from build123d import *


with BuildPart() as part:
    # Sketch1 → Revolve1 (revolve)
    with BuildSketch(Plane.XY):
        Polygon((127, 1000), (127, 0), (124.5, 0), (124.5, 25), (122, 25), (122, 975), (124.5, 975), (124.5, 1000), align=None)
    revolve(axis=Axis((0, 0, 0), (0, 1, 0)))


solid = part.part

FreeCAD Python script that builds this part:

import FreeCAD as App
import Part
import Sketcher

doc = App.newDocument("Part")
body = doc.addObject("PartDesign::Body", "Body")

sketch1 = doc.addObject("Sketcher::SketchObject", "Sketch")
body.addObject(sketch1)
sketch1.AttachmentSupport = (doc.XY_Plane, [""])
sketch1.MapMode = "FlatFace"
sketch1.addGeometry([
    Part.LineSegment(App.Vector(127, 0, 0), App.Vector(127, 1000, 0)),
    Part.LineSegment(App.Vector(127, 1000, 0), App.Vector(124.5, 1000, 0)),
    Part.LineSegment(App.Vector(124.5, 1000, 0), App.Vector(124.5, 975, 0)),
    Part.LineSegment(App.Vector(124.5, 975, 0), App.Vector(122, 975, 0)),
    Part.LineSegment(App.Vector(122, 975, 0), App.Vector(122, 25, 0)),
    Part.LineSegment(App.Vector(122, 25, 0), App.Vector(124.5, 25, 0)),
    Part.LineSegment(App.Vector(124.5, 25, 0), App.Vector(124.5, 0, 0)),
    Part.LineSegment(App.Vector(124.5, 0, 0), App.Vector(127, 0, 0)),
], False)
sketch1.addConstraint([
    Sketcher.Constraint("Coincident", 0, 2, 1, 1),
    Sketcher.Constraint("Coincident", 1, 2, 2, 1),
    Sketcher.Constraint("Coincident", 2, 2, 3, 1),
    Sketcher.Constraint("Coincident", 3, 2, 4, 1),
    Sketcher.Constraint("Coincident", 4, 2, 5, 1),
    Sketcher.Constraint("Coincident", 5, 2, 6, 1),
    Sketcher.Constraint("Coincident", 6, 2, 7, 1),
    Sketcher.Constraint("Coincident", 7, 2, 0, 1),
    Sketcher.Constraint("Vertical", 0),
    Sketcher.Constraint("Horizontal", 1),
    Sketcher.Constraint("Vertical", 2),
    Sketcher.Constraint("Horizontal", 3),
    Sketcher.Constraint("Vertical", 4),
    Sketcher.Constraint("Horizontal", 5),
    Sketcher.Constraint("Vertical", 6),
    Sketcher.Constraint("Horizontal", 7),
    Sketcher.Constraint("PointOnObject", 6, 2, -1),
    Sketcher.Constraint("Vertical", 2, 2, 5, 2),
    Sketcher.Constraint("Equal", 1, 3),
    Sketcher.Constraint("Equal", 2, 6),
    Sketcher.Constraint("DistanceY", 0, 1, 0, 2, 1000.0),
    Sketcher.Constraint("DistanceY", 2, 2, 2, 1, 25.0),
    Sketcher.Constraint("DistanceX", 1, 2, 1, 1, 2.5),
    Sketcher.Constraint("DistanceX", -1, 1, 0, 2, 127.0),
])
revolution = doc.addObject("PartDesign::Revolution", "Revolution")
body.addObject(revolution)
revolution.Profile = sketch1
revolution.ReferenceAxis = (sketch1, ["V_Axis"])
revolution.Angle = 360

doc.recompute()
